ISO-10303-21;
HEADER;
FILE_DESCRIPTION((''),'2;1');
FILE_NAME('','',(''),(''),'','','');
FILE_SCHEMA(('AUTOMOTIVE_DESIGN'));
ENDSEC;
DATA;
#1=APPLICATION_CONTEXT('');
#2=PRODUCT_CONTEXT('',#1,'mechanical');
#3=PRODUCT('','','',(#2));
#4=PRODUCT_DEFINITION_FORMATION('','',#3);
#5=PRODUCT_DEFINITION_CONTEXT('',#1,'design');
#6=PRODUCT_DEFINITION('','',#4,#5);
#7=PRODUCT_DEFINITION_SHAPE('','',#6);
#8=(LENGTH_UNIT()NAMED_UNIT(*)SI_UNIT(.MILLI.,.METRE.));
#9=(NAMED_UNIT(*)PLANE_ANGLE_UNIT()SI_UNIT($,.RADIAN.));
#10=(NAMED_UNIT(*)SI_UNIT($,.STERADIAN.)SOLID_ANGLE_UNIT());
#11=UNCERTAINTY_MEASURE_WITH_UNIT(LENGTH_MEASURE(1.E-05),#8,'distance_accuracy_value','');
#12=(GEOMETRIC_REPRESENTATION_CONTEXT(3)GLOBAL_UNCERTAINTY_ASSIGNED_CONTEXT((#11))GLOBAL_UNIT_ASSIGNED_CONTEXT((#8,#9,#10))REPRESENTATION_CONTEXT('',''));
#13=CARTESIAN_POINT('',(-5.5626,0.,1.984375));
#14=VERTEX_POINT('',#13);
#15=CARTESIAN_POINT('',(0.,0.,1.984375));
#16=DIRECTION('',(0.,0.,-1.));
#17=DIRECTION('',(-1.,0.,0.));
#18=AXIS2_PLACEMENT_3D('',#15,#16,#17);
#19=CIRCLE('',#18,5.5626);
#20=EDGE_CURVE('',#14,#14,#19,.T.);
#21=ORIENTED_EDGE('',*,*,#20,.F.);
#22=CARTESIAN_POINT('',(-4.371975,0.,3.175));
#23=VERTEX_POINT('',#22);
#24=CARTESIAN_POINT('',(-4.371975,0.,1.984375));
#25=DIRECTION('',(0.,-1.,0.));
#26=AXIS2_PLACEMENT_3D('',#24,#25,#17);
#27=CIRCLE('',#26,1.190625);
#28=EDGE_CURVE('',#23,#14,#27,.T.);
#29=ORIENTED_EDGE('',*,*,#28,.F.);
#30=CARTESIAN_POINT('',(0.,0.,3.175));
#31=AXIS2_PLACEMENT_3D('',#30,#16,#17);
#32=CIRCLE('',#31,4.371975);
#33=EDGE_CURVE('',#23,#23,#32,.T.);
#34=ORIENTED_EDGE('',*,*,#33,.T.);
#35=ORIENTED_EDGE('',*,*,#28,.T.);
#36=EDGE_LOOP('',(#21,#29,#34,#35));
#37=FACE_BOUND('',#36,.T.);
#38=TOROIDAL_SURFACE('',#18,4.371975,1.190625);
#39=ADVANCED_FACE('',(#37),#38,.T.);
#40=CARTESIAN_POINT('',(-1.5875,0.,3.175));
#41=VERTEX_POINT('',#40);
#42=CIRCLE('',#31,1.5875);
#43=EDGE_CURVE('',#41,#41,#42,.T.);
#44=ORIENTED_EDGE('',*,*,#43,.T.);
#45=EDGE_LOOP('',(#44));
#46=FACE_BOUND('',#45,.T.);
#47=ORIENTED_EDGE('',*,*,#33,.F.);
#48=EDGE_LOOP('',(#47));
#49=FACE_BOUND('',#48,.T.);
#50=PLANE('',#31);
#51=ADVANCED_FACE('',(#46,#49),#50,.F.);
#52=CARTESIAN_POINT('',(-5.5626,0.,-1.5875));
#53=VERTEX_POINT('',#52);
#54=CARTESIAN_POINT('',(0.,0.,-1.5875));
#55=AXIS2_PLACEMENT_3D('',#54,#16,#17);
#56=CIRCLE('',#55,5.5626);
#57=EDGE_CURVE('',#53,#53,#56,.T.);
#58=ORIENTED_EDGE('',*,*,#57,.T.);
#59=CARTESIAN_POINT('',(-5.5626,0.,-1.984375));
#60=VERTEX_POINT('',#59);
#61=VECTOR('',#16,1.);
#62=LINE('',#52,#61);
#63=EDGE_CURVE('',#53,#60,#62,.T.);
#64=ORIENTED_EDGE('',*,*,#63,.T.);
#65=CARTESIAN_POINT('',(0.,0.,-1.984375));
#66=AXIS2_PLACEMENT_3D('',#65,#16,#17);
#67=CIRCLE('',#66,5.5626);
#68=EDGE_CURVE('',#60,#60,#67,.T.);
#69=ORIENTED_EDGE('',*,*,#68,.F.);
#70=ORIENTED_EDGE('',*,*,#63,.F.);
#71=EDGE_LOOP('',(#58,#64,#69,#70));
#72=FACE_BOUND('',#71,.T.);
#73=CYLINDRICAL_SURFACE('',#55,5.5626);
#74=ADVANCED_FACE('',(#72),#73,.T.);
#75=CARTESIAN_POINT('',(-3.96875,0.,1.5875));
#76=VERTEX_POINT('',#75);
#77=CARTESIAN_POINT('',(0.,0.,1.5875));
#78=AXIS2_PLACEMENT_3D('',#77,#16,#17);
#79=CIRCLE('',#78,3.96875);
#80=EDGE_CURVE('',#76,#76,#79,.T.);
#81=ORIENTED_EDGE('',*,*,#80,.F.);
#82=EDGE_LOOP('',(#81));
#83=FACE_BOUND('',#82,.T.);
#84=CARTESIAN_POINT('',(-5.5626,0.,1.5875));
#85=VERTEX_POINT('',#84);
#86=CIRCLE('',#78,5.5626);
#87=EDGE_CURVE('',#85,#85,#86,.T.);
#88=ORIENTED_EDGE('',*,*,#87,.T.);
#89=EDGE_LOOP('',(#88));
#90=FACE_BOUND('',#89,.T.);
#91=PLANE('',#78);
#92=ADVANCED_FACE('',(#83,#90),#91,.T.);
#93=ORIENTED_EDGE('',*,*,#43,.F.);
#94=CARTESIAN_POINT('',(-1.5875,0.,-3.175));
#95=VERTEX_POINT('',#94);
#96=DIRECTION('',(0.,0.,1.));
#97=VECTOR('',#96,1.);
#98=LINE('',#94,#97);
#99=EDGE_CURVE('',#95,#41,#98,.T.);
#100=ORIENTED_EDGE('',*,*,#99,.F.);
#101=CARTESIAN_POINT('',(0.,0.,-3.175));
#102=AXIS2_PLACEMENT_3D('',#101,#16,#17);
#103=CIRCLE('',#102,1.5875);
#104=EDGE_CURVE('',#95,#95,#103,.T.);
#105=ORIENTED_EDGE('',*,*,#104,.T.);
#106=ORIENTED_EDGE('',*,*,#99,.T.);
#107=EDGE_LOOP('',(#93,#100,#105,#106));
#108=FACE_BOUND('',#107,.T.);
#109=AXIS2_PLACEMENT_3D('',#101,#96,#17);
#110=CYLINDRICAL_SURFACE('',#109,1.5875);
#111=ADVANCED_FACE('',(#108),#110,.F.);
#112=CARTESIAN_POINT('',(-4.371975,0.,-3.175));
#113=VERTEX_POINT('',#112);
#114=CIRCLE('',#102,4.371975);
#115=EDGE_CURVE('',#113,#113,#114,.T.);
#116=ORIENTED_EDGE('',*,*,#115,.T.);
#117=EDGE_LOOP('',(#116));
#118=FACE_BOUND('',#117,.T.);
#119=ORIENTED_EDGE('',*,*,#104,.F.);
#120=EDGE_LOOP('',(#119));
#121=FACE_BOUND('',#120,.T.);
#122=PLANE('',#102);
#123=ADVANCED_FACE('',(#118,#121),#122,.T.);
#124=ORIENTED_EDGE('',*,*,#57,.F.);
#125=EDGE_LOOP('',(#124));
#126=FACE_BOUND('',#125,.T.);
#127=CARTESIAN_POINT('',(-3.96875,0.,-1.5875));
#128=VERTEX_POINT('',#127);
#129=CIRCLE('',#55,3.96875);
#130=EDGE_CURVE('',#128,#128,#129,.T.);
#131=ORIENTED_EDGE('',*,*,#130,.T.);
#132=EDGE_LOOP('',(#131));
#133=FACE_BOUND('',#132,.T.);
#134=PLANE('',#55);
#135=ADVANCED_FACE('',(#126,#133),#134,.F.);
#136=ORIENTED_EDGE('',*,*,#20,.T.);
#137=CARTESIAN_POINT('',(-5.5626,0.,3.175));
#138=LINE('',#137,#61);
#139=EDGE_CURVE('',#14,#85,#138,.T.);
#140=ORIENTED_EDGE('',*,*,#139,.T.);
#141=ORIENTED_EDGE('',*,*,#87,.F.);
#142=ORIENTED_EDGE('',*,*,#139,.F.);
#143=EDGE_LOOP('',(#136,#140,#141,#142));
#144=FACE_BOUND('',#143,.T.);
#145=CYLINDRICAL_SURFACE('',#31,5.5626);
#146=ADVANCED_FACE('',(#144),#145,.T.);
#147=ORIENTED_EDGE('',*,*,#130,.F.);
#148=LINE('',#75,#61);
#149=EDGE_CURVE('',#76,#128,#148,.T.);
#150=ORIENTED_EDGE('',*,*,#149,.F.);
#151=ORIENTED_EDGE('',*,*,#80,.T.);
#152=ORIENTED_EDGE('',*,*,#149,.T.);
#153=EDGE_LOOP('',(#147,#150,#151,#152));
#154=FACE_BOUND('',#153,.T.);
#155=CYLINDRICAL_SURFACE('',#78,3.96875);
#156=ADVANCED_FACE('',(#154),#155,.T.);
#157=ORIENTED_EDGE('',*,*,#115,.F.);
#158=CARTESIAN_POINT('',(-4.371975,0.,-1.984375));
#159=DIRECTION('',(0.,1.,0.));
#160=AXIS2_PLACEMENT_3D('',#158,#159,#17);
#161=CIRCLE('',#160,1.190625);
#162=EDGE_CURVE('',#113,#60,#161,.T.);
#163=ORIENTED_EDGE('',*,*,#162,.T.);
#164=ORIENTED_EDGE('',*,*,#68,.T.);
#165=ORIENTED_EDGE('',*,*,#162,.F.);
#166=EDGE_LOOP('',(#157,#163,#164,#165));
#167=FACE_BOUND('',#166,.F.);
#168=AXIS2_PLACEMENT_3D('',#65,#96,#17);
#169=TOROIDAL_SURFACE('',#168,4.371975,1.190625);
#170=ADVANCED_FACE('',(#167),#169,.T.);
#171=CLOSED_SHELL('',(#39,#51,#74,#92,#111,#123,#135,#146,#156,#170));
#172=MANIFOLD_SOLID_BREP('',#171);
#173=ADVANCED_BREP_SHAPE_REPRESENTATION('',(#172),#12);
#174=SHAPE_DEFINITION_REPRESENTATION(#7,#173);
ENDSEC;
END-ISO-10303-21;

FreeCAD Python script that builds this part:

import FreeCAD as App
import Part
import Sketcher
Q = App.Units.Quantity


def edges_at(feature, points):
    """Names of the edges that pass closest to the given points."""
    edges = feature.Shape.Edges
    near = lambda p: min(range(len(edges)), key=lambda i: edges[i].distToShape(Part.Vertex(*p))[0])
    return sorted({f"Edge{near(p) + 1}" for p in points})

doc = App.newDocument("Part")
params = doc.addObject("Spreadsheet::Sheet", "Params")
for row, (alias, value) in enumerate([
    ("sketch1_height", "0.25 in"),
    ("sketch1_height2", "0.0625 in"),
    ("revolution_angle", "360 deg"),
    ("fillet_radius", "0.046875 in"),
    ("fillet2_radius", "0.046875 in"),
], start=1):
    params.set(f"A{row}", alias)
    params.set(f"B{row}", "=" + value)
    params.setAlias(f"B{row}", alias)

body = doc.addObject("PartDesign::Body", "Body")

sketch1 = body.newObject("Sketcher::SketchObject", "Sketch")
sketch1.AttachmentSupport = (doc.getObject("XZ_Plane"), [""])
sketch1.MapMode = "FlatFace"
sketch1.addGeometry([
    Part.LineSegment(App.Vector(-1.6, -3.2, 0), App.Vector(-1.6, 3.2, 0)),
    Part.LineSegment(App.Vector(-1.6, 3.2, 0), App.Vector(-5.6, 3.2, 0)),
    Part.LineSegment(App.Vector(-5.6, 3.2, 0), App.Vector(-5.6, 1.6, 0)),
    Part.LineSegment(App.Vector(-5.6, 1.6, 0), App.Vector(-4, 1.6, 0)),
    Part.LineSegment(App.Vector(-4, 1.6, 0), App.Vector(-4, -1.6, 0)),
    Part.LineSegment(App.Vector(-4, -1.6, 0), App.Vector(-5.6, -1.6, 0)),
    Part.LineSegment(App.Vector(-5.6, -1.6, 0), App.Vector(-5.6, -3.2, 0)),
    Part.LineSegment(App.Vector(-5.6, -3.2, 0), App.Vector(-1.6, -3.2, 0)),
], False)
sketch1.addConstraint([
    Sketcher.Constraint("Coincident", 0, 2, 1, 1),
    Sketcher.Constraint("Coincident", 1, 2, 2, 1),
    Sketcher.Constraint("Coincident", 2, 2, 3, 1),
    Sketcher.Constraint("Coincident", 3, 2, 4, 1),
    Sketcher.Constraint("Coincident", 4, 2, 5, 1),
    Sketcher.Constraint("Coincident", 5, 2, 6, 1),
    Sketcher.Constraint("Coincident", 6, 2, 7, 1),
    Sketcher.Constraint("Coincident", 7, 2, 0, 1),
    Sketcher.Constraint("Vertical", 0),
    Sketcher.Constraint("Horizontal", 1),
    Sketcher.Constraint("Vertical", 2),
    Sketcher.Constraint("Horizontal", 3),
    Sketcher.Constraint("Vertical", 4),
    Sketcher.Constraint("Horizontal", 5),
    Sketcher.Constraint("Vertical", 6),
    Sketcher.Constraint("Horizontal", 7),
    Sketcher.Constraint("Symmetric", 2, 2, 5, 2, -1),
    Sketcher.Constraint("Equal", 2, 6),
    Sketcher.Constraint("DistanceY", 0, 1, 0, 2, Q("0.25 in")),
    Sketcher.Constraint("DistanceY", 2, 2, 2, 1, Q("0.0625 in")),
    Sketcher.Constraint("DistanceX", 1, 2, 1, 1, Q("0.1565 in")),
    Sketcher.Constraint("DistanceX", 0, 2, -1, 1, Q("0.0625 in")),
    Sketcher.Constraint("DistanceX", 3, 2, -1, 1, Q("0.15625 in")),
])
sketch1.setExpression("Constraints[18]", "Params.sketch1_height")
sketch1.setExpression("Constraints[19]", "Params.sketch1_height2")
revolution = body.newObject("PartDesign::Revolution", "Revolution")
revolution.Profile = sketch1
revolution.ReferenceAxis = (sketch1, ["V_Axis"])
revolution.setExpression("Angle", "Params.revolution_angle")
doc.recompute()

fillet = body.newObject("PartDesign::Fillet", "Fillet")
fillet.Base = (revolution, edges_at(revolution, [(5.563, 0, 3.175)]))
fillet.setExpression("Radius", "Params.fillet_radius")
doc.recompute()

fillet2 = body.newObject("PartDesign::Fillet", "Fillet001")
fillet2.Base = (fillet, edges_at(fillet, [(5.563, 0, -3.175)]))
fillet2.setExpression("Radius", "Params.fillet2_radius")

doc.recompute()
